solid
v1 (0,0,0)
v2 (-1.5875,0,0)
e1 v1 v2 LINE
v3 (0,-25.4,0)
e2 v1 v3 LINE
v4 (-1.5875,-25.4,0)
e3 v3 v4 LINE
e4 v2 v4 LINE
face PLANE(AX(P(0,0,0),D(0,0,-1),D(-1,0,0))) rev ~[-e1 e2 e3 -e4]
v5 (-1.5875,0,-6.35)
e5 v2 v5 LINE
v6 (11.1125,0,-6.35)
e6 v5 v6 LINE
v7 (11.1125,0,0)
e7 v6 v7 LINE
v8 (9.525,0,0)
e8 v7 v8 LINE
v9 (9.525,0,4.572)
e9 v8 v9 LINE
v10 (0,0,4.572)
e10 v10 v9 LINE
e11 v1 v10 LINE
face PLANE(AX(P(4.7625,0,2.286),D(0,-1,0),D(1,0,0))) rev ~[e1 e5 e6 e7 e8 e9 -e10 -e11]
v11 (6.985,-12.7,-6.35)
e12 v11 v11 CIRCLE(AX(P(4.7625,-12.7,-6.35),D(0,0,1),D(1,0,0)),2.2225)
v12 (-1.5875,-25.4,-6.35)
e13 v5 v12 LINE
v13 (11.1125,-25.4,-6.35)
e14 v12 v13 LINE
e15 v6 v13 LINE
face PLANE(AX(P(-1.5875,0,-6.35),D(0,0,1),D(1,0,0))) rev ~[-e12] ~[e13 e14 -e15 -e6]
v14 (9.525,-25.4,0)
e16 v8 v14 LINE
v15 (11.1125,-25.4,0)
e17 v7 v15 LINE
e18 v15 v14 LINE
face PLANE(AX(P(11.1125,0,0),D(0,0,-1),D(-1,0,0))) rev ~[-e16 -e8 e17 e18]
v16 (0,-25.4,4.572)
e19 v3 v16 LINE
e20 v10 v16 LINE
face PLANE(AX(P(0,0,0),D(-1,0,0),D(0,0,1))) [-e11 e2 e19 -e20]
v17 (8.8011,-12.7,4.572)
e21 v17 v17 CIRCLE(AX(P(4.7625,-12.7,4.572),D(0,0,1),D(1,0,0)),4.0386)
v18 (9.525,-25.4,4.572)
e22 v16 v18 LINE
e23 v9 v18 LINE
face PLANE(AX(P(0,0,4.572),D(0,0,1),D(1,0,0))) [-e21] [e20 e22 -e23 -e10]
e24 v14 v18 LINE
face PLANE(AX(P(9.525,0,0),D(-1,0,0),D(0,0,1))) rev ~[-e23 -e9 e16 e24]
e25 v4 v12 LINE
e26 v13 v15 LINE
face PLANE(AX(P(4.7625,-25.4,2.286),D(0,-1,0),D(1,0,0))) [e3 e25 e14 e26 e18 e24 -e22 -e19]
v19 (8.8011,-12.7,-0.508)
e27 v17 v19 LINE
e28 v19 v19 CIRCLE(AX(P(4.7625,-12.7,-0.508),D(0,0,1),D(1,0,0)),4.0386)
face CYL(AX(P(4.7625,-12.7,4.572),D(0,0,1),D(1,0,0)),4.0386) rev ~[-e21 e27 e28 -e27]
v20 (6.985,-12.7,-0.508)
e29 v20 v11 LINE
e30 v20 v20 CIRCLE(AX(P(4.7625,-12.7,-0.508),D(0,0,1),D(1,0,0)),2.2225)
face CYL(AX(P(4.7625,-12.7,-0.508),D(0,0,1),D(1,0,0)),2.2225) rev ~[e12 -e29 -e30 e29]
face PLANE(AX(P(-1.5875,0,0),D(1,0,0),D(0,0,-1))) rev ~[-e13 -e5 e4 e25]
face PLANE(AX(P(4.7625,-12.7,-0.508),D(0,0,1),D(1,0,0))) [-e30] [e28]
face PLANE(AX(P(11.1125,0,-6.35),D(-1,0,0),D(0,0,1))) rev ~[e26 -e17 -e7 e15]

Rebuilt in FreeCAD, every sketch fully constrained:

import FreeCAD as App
import Part
import Sketcher

V = App.Vector
Q = App.Units.Quantity


def add_polygon(sketch, points):
    """Adds a closed chain of lines whose ends are joined by coincident constraints."""
    first, n = sketch.GeometryCount, len(points)
    for a, b in zip(points, points[1:] + points[:1]):
        sketch.addGeometry(Part.LineSegment(App.Vector(*a, 0), App.Vector(*b, 0)), False)
    for i in range(n):
        sketch.addConstraint(Sketcher.Constraint("Coincident", first + i, 2, first + (i + 1) % n, 1))

doc = App.newDocument("Part")
body = doc.addObject("PartDesign::Body", "Body")

# Sketch on XZ plane
sketch1 = doc.addObject("Sketcher::SketchObject", "Sketch")
body.addObject(sketch1)
sketch1.AttachmentSupport = (doc.XZ_Plane, [""])
sketch1.MapMode = "FlatFace"
add_polygon(sketch1, [(0, 4.6), (0, 0), (-1.6, 0), (-1.6, -6.3), (11.1, -6.3), (11.1, 0), (9.5, 0), (9.5, 4.6)])  # lines 0-7
sketch1.addConstraint([
    Sketcher.Constraint("Vertical", 0),
    Sketcher.Constraint("Horizontal", 1),
    Sketcher.Constraint("Vertical", 2),
    Sketcher.Constraint("Horizontal", 3),
    Sketcher.Constraint("Vertical", 4),
    Sketcher.Constraint("Horizontal", 5),
    Sketcher.Constraint("Vertical", 6),
    Sketcher.Constraint("Horizontal", 7),
    Sketcher.Constraint("Coincident", 0, 2, -1, 1),
    Sketcher.Constraint("PointOnObject", 4, 2, -1),
    Sketcher.Constraint("Equal", 1, 5),
    Sketcher.Constraint("DistanceX", 3, 1, 3, 2, Q("0.5 in")),
    Sketcher.Constraint("DistanceY", 0, 2, 0, 1, Q("0.18 in")),
    Sketcher.Constraint("DistanceY", 2, 2, 2, 1, Q("0.25 in")),
    Sketcher.Constraint("DistanceX", 1, 2, 1, 1, Q("0.0625 in")),
])
pad1 = doc.addObject("PartDesign::Pad", "Pad")
body.addObject(pad1)
pad1.Profile = sketch1
pad1.Length = Q("1 in")

# Sketch on XY plane
sketch2 = doc.addObject("Sketcher::SketchObject", "Sketch001")
body.addObject(sketch2)
sketch2.AttachmentSupport = (doc.XY_Plane, [""])
sketch2.MapMode = "FlatFace"
sketch2.AttachmentOffset = App.Placement(V(0, 0, 0.18 * 25.4), App.Rotation())
sketch2.addGeometry(Part.Circle(V(4.8, -12.7, 0), V(0, 0, 1), 4), False)
sketch2.addConstraint([
    Sketcher.Constraint("Diameter", 0, Q("0.318 in")),
    Sketcher.Constraint("DistanceY", 0, 3, -1, 1, Q("0.5 in")),
    Sketcher.Constraint("DistanceX", -1, 1, 0, 3, Q("0.1875 in")),
])
pocket1 = doc.addObject("PartDesign::Pocket", "Pocket")
body.addObject(pocket1)
pocket1.Profile = sketch2
pocket1.Length = Q("0.2 in")

# Sketch on XY plane
sketch3 = doc.addObject("Sketcher::SketchObject", "Sketch002")
body.addObject(sketch3)
sketch3.AttachmentSupport = (doc.XY_Plane, [""])
sketch3.MapMode = "FlatFace"
sketch3.AttachmentOffset = App.Placement(V(0, 0, -0.02 * 25.4), App.Rotation())
sketch3.addGeometry(Part.Circle(V(4.8, -12.7, 0), V(0, 0, 1), 2.2), False)
sketch3.addConstraint([
    Sketcher.Constraint("Diameter", 0, Q("0.175 in")),
    Sketcher.Constraint("DistanceY", 0, 3, -1, 1, Q("0.5 in")),
    Sketcher.Constraint("DistanceX", -1, 1, 0, 3, Q("0.1875 in")),
])
pocket2 = doc.addObject("PartDesign::Pocket", "Pocket001")
body.addObject(pocket2)
pocket2.Profile = sketch3
pocket2.Type = "ThroughAll"

doc.recompute()
